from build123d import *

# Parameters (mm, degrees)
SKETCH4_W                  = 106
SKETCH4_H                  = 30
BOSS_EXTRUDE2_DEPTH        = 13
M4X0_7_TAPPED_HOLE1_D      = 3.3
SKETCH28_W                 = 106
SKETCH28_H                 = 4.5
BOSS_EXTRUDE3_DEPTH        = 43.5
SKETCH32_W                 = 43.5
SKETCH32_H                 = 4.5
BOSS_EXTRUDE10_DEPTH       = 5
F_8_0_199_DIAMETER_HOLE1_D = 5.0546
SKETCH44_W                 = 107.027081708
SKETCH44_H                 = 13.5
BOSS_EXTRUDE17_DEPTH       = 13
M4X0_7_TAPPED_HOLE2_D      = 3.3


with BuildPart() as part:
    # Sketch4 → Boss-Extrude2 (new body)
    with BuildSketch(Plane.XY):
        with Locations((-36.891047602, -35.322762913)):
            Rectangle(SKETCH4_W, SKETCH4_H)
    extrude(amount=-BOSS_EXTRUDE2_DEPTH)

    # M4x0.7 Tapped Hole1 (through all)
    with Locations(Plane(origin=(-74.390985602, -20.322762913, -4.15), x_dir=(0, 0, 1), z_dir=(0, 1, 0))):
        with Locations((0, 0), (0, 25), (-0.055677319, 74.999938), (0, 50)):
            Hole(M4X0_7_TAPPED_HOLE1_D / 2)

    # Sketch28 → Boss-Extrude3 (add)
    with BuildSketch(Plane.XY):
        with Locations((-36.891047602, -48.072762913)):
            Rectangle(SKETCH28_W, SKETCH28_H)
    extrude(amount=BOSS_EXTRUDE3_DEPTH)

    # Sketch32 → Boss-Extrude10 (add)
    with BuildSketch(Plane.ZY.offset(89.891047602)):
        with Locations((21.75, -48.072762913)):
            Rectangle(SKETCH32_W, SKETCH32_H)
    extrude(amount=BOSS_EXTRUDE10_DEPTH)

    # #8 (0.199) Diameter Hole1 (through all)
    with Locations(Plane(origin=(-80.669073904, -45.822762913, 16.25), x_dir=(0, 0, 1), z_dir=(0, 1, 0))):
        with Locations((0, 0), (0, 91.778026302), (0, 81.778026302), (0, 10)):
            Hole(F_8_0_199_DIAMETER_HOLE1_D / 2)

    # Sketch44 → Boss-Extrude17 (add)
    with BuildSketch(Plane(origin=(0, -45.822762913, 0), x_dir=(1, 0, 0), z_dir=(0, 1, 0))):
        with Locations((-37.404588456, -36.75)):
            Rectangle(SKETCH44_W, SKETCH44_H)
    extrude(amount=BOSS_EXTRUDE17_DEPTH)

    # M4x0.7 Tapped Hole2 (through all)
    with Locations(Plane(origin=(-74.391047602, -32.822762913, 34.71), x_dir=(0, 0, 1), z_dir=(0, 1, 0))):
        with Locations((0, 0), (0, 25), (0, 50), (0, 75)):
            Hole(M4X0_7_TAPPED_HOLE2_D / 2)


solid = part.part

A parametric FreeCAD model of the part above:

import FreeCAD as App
import Part
import Sketcher
from FreeCAD import Vector


def add_polygon(sketch, points):
    """Adds a closed chain of lines whose ends are joined by coincident constraints."""
    first, n = sketch.GeometryCount, len(points)
    for a, b in zip(points, points[1:] + points[:1]):
        sketch.addGeometry(Part.LineSegment(App.Vector(*a, 0), App.Vector(*b, 0)), False)
    for i in range(n):
        sketch.addConstraint(Sketcher.Constraint("Coincident", first + i, 2, first + (i + 1) % n, 1))

doc = App.newDocument("Part")
body = doc.addObject("PartDesign::Body", "Body")

# Sketch on XY plane
sketch1 = body.newObject("Sketcher::SketchObject", "Sketch")
sketch1.AttachmentSupport = (doc.getObject("XY_Plane"), [""])
sketch1.MapMode = "FlatFace"
add_polygon(sketch1, [(-90, -20), (-90, -50), (16, -50), (16, -20)])  # lines 0-3
sketch1.addConstraint([
    Sketcher.Constraint("Vertical", 0),
    Sketcher.Constraint("Horizontal", 1),
    Sketcher.Constraint("Vertical", 2),
    Sketcher.Constraint("Horizontal", 3),
    Sketcher.Constraint("DistanceX", 1, 1, 1, 2, 106.0),
    Sketcher.Constraint("DistanceY", 0, 2, 0, 1, 30.0),
    Sketcher.Constraint("DistanceX", 0, 2, -1, 1, 89.891048),
    Sketcher.Constraint("DistanceY", 0, 2, -1, 1, 50.322763),
])
pad1 = body.newObject("PartDesign::Pad", "Pad")
pad1.Profile = sketch1
pad1.Length = 13
pad1.Reversed = True

# Sketch on XZ plane
sketch2 = body.newObject("Sketcher::SketchObject", "Sketch001")
sketch2.AttachmentSupport = (doc.getObject("XZ_Plane"), [""])
sketch2.MapMode = "FlatFace"
sketch2.AttachmentOffset = App.Placement(Vector(0, 0, 20.322763), App.Rotation())
sketch2.addGeometry([
    Part.Circle(Vector(-74.4, -4.2, 0), Vector(0, 0, 1), 1.6),
    Part.Circle(Vector(-49.4, -4.2, 0), Vector(0, 0, 1), 1.6),
    Part.Circle(Vector(0.6, -4.2, 0), Vector(0, 0, 1), 1.6),
    Part.Circle(Vector(-24.4, -4.2, 0), Vector(0, 0, 1), 1.6),
], False)
sketch2.addConstraint([
    Sketcher.Constraint("Equal", 0, 1),
    Sketcher.Constraint("Equal", 1, 2),
    Sketcher.Constraint("Equal", 2, 3),
    Sketcher.Constraint("Horizontal", 0, 3, 1, 3),
    Sketcher.Constraint("Horizontal", 1, 3, 3, 3),
    Sketcher.Constraint("Diameter", 0, 3.3),
    Sketcher.Constraint("DistanceX", 0, 3, 1, 3, 25.0),
    Sketcher.Constraint("DistanceX", 1, 3, 3, 3, 25.0),
    Sketcher.Constraint("DistanceY", 0, 3, -1, 1, 4.15),
    Sketcher.Constraint("DistanceX", 0, 3, 2, 3, 74.999938),
    Sketcher.Constraint("DistanceX", 0, 3, -1, 1, 74.390986),
    Sketcher.Constraint("DistanceY", 2, 3, -1, 1, 4.205677),
])
doc.recompute()
hole = body.newObject("PartDesign::Hole", "Hole")
hole.Profile = sketch2
hole.ThreadType = "None"
hole.Diameter = 3.3
hole.DepthType = "ThroughAll"
hole.Reversed = True

# Sketch on XY plane
sketch3 = body.newObject("Sketcher::SketchObject", "Sketch002")
sketch3.AttachmentSupport = (doc.getObject("XY_Plane"), [""])
sketch3.MapMode = "FlatFace"
add_polygon(sketch3, [(-89.9, -45.8), (-89.9, -50.3), (16.1, -50.3), (16.1, -45.8)])  # lines 0-3
sketch3.addConstraint([
    Sketcher.Constraint("Vertical", 0),
    Sketcher.Constraint("Horizontal", 1),
    Sketcher.Constraint("Vertical", 2),
    Sketcher.Constraint("Horizontal", 3),
    Sketcher.Constraint("DistanceX", 1, 1, 1, 2, 106.0),
    Sketcher.Constraint("DistanceY", 0, 2, 0, 1, 4.5),
    Sketcher.Constraint("DistanceX", 0, 2, -1, 1, 89.891048),
    Sketcher.Constraint("DistanceY", 0, 2, -1, 1, 50.322763),
])
pad2 = body.newObject("PartDesign::Pad", "Pad001")
pad2.Profile = sketch3
pad2.Length = 43.5

# Sketch on YZ plane
sketch4 = body.newObject("Sketcher::SketchObject", "Sketch003")
sketch4.AttachmentSupport = (doc.getObject("YZ_Plane"), [""])
sketch4.MapMode = "FlatFace"
sketch4.AttachmentOffset = App.Placement(Vector(0, 0, -89.891048), App.Rotation())
add_polygon(sketch4, [(-45.8, 0), (-50.3, 0), (-50.3, 43.5), (-45.8, 43.5)])  # lines 0-3
sketch4.addConstraint([
    Sketcher.Constraint("Horizontal", 0),
    Sketcher.Constraint("Vertical", 1),
    Sketcher.Constraint("Horizontal", 2),
    Sketcher.Constraint("Vertical", 3),
    Sketcher.Constraint("PointOnObject", 0, 2, -1),
    Sketcher.Constraint("DistanceX", 0, 2, 0, 1, 4.5),
    Sketcher.Constraint("DistanceY", 1, 1, 1, 2, 43.5),
    Sketcher.Constraint("DistanceX", 0, 2, -1, 1, 50.322763),
])
pad3 = body.newObject("PartDesign::Pad", "Pad002")
pad3.Profile = sketch4
pad3.Length = 5
pad3.Reversed = True

# Sketch on XZ plane
sketch5 = body.newObject("Sketcher::SketchObject", "Sketch004")
sketch5.AttachmentSupport = (doc.getObject("XZ_Plane"), [""])
sketch5.MapMode = "FlatFace"
sketch5.AttachmentOffset = App.Placement(Vector(0, 0, 45.822763), App.Rotation())
sketch5.addGeometry([
    Part.Circle(Vector(-80.7, 16.2, 0), Vector(0, 0, 1), 2.5),
    Part.Circle(Vector(11.1, 16.2, 0), Vector(0, 0, 1), 2.5),
    Part.Circle(Vector(1.1, 16.2, 0), Vector(0, 0, 1), 2.5),
    Part.Circle(Vector(-70.7, 16.2, 0), Vector(0, 0, 1), 2.5),
], False)
sketch5.addConstraint([
    Sketcher.Constraint("Equal", 0, 1),
    Sketcher.Constraint("Equal", 1, 2),
    Sketcher.Constraint("Equal", 2, 3),
    Sketcher.Constraint("Horizontal", 0, 3, 1, 3),
    Sketcher.Constraint("Horizontal", 1, 3, 2, 3),
    Sketcher.Constraint("Horizontal", 2, 3, 3, 3),
    Sketcher.Constraint("DistanceX", 2, 3, 1, 3, 10.0),
    Sketcher.Constraint("DistanceX", 0, 3, 3, 3, 10.0),
    Sketcher.Constraint("Diameter", 0, 5.0546),
    Sketcher.Constraint("DistanceY", -1, 1, 0, 3, 16.25),
    Sketcher.Constraint("DistanceX", 0, 3, -1, 1, 80.669074),
    Sketcher.Constraint("DistanceX", -1, 1, 1, 3, 11.108952),
])
doc.recompute()
hole2 = body.newObject("PartDesign::Hole", "Hole001")
hole2.Profile = sketch5
hole2.ThreadType = "None"
hole2.Diameter = 5.0546
hole2.DepthType = "ThroughAll"
hole2.Reversed = True

# Sketch on XZ plane
sketch6 = body.newObject("Sketcher::SketchObject", "Sketch005")
sketch6.AttachmentSupport = (doc.getObject("XZ_Plane"), [""])
sketch6.MapMode = "FlatFace"
sketch6.AttachmentOffset = App.Placement(Vector(0, 0, 45.822763), App.Rotation())
add_polygon(sketch6, [(-91, 30), (-91, 44), (16, 44), (16, 30)])  # lines 0-3
sketch6.addConstraint([
    Sketcher.Constraint("Vertical", 0),
    Sketcher.Constraint("Horizontal", 1),
    Sketcher.Constraint("Vertical", 2),
    Sketcher.Constraint("Horizontal", 3),
    Sketcher.Constraint("DistanceY", 0, 1, 0, 2, 13.5),
    Sketcher.Constraint("DistanceY", -1, 1, 2, 2, 30.0),
    Sketcher.Constraint("DistanceX", 1, 1, 1, 2, 107.027082),
    Sketcher.Constraint("DistanceX", 0, 2, -1, 1, 90.918129),
])
pad4 = body.newObject("PartDesign::Pad", "Pad003")
pad4.Profile = sketch6
pad4.Length = 13
pad4.Reversed = True

# Sketch on XZ plane
sketch7 = body.newObject("Sketcher::SketchObject", "Sketch006")
sketch7.AttachmentSupport = (doc.getObject("XZ_Plane"), [""])
sketch7.MapMode = "FlatFace"
sketch7.AttachmentOffset = App.Placement(Vector(0, 0, 32.822763), App.Rotation())
sketch7.addGeometry([
    Part.Circle(Vector(-74.4, 34.7, 0), Vector(0, 0, 1), 1.6),
    Part.Circle(Vector(-49.4, 34.7, 0), Vector(0, 0, 1), 1.6),
    Part.Circle(Vector(-24.4, 34.7, 0), Vector(0, 0, 1), 1.6),
    Part.Circle(Vector(0.6, 34.7, 0), Vector(0, 0, 1), 1.6),
], False)
sketch7.addConstraint([
    Sketcher.Constraint("Equal", 0, 1),
    Sketcher.Constraint("Equal", 1, 2),
    Sketcher.Constraint("Equal", 2, 3),
    Sketcher.Constraint("Horizontal", 0, 3, 1, 3),
    Sketcher.Constraint("Horizontal", 1, 3, 2, 3),
    Sketcher.Constraint("Horizontal", 2, 3, 3, 3),
    Sketcher.Constraint("Diameter", 0, 3.3),
    Sketcher.Constraint("DistanceX", 0, 3, 1, 3, 25.0),
    Sketcher.Constraint("DistanceX", 1, 3, 2, 3, 25.0),
    Sketcher.Constraint("DistanceX", 2, 3, 3, 3, 25.0),
    Sketcher.Constraint("DistanceY", -1, 1, 0, 3, 34.71),
    Sketcher.Constraint("DistanceX", 0, 3, -1, 1, 74.391048),
])
doc.recompute()
hole3 = body.newObject("PartDesign::Hole", "Hole002")
hole3.Profile = sketch7
hole3.ThreadType = "None"
hole3.Diameter = 3.3
hole3.DepthType = "ThroughAll"
hole3.Reversed = True

doc.recompute()
